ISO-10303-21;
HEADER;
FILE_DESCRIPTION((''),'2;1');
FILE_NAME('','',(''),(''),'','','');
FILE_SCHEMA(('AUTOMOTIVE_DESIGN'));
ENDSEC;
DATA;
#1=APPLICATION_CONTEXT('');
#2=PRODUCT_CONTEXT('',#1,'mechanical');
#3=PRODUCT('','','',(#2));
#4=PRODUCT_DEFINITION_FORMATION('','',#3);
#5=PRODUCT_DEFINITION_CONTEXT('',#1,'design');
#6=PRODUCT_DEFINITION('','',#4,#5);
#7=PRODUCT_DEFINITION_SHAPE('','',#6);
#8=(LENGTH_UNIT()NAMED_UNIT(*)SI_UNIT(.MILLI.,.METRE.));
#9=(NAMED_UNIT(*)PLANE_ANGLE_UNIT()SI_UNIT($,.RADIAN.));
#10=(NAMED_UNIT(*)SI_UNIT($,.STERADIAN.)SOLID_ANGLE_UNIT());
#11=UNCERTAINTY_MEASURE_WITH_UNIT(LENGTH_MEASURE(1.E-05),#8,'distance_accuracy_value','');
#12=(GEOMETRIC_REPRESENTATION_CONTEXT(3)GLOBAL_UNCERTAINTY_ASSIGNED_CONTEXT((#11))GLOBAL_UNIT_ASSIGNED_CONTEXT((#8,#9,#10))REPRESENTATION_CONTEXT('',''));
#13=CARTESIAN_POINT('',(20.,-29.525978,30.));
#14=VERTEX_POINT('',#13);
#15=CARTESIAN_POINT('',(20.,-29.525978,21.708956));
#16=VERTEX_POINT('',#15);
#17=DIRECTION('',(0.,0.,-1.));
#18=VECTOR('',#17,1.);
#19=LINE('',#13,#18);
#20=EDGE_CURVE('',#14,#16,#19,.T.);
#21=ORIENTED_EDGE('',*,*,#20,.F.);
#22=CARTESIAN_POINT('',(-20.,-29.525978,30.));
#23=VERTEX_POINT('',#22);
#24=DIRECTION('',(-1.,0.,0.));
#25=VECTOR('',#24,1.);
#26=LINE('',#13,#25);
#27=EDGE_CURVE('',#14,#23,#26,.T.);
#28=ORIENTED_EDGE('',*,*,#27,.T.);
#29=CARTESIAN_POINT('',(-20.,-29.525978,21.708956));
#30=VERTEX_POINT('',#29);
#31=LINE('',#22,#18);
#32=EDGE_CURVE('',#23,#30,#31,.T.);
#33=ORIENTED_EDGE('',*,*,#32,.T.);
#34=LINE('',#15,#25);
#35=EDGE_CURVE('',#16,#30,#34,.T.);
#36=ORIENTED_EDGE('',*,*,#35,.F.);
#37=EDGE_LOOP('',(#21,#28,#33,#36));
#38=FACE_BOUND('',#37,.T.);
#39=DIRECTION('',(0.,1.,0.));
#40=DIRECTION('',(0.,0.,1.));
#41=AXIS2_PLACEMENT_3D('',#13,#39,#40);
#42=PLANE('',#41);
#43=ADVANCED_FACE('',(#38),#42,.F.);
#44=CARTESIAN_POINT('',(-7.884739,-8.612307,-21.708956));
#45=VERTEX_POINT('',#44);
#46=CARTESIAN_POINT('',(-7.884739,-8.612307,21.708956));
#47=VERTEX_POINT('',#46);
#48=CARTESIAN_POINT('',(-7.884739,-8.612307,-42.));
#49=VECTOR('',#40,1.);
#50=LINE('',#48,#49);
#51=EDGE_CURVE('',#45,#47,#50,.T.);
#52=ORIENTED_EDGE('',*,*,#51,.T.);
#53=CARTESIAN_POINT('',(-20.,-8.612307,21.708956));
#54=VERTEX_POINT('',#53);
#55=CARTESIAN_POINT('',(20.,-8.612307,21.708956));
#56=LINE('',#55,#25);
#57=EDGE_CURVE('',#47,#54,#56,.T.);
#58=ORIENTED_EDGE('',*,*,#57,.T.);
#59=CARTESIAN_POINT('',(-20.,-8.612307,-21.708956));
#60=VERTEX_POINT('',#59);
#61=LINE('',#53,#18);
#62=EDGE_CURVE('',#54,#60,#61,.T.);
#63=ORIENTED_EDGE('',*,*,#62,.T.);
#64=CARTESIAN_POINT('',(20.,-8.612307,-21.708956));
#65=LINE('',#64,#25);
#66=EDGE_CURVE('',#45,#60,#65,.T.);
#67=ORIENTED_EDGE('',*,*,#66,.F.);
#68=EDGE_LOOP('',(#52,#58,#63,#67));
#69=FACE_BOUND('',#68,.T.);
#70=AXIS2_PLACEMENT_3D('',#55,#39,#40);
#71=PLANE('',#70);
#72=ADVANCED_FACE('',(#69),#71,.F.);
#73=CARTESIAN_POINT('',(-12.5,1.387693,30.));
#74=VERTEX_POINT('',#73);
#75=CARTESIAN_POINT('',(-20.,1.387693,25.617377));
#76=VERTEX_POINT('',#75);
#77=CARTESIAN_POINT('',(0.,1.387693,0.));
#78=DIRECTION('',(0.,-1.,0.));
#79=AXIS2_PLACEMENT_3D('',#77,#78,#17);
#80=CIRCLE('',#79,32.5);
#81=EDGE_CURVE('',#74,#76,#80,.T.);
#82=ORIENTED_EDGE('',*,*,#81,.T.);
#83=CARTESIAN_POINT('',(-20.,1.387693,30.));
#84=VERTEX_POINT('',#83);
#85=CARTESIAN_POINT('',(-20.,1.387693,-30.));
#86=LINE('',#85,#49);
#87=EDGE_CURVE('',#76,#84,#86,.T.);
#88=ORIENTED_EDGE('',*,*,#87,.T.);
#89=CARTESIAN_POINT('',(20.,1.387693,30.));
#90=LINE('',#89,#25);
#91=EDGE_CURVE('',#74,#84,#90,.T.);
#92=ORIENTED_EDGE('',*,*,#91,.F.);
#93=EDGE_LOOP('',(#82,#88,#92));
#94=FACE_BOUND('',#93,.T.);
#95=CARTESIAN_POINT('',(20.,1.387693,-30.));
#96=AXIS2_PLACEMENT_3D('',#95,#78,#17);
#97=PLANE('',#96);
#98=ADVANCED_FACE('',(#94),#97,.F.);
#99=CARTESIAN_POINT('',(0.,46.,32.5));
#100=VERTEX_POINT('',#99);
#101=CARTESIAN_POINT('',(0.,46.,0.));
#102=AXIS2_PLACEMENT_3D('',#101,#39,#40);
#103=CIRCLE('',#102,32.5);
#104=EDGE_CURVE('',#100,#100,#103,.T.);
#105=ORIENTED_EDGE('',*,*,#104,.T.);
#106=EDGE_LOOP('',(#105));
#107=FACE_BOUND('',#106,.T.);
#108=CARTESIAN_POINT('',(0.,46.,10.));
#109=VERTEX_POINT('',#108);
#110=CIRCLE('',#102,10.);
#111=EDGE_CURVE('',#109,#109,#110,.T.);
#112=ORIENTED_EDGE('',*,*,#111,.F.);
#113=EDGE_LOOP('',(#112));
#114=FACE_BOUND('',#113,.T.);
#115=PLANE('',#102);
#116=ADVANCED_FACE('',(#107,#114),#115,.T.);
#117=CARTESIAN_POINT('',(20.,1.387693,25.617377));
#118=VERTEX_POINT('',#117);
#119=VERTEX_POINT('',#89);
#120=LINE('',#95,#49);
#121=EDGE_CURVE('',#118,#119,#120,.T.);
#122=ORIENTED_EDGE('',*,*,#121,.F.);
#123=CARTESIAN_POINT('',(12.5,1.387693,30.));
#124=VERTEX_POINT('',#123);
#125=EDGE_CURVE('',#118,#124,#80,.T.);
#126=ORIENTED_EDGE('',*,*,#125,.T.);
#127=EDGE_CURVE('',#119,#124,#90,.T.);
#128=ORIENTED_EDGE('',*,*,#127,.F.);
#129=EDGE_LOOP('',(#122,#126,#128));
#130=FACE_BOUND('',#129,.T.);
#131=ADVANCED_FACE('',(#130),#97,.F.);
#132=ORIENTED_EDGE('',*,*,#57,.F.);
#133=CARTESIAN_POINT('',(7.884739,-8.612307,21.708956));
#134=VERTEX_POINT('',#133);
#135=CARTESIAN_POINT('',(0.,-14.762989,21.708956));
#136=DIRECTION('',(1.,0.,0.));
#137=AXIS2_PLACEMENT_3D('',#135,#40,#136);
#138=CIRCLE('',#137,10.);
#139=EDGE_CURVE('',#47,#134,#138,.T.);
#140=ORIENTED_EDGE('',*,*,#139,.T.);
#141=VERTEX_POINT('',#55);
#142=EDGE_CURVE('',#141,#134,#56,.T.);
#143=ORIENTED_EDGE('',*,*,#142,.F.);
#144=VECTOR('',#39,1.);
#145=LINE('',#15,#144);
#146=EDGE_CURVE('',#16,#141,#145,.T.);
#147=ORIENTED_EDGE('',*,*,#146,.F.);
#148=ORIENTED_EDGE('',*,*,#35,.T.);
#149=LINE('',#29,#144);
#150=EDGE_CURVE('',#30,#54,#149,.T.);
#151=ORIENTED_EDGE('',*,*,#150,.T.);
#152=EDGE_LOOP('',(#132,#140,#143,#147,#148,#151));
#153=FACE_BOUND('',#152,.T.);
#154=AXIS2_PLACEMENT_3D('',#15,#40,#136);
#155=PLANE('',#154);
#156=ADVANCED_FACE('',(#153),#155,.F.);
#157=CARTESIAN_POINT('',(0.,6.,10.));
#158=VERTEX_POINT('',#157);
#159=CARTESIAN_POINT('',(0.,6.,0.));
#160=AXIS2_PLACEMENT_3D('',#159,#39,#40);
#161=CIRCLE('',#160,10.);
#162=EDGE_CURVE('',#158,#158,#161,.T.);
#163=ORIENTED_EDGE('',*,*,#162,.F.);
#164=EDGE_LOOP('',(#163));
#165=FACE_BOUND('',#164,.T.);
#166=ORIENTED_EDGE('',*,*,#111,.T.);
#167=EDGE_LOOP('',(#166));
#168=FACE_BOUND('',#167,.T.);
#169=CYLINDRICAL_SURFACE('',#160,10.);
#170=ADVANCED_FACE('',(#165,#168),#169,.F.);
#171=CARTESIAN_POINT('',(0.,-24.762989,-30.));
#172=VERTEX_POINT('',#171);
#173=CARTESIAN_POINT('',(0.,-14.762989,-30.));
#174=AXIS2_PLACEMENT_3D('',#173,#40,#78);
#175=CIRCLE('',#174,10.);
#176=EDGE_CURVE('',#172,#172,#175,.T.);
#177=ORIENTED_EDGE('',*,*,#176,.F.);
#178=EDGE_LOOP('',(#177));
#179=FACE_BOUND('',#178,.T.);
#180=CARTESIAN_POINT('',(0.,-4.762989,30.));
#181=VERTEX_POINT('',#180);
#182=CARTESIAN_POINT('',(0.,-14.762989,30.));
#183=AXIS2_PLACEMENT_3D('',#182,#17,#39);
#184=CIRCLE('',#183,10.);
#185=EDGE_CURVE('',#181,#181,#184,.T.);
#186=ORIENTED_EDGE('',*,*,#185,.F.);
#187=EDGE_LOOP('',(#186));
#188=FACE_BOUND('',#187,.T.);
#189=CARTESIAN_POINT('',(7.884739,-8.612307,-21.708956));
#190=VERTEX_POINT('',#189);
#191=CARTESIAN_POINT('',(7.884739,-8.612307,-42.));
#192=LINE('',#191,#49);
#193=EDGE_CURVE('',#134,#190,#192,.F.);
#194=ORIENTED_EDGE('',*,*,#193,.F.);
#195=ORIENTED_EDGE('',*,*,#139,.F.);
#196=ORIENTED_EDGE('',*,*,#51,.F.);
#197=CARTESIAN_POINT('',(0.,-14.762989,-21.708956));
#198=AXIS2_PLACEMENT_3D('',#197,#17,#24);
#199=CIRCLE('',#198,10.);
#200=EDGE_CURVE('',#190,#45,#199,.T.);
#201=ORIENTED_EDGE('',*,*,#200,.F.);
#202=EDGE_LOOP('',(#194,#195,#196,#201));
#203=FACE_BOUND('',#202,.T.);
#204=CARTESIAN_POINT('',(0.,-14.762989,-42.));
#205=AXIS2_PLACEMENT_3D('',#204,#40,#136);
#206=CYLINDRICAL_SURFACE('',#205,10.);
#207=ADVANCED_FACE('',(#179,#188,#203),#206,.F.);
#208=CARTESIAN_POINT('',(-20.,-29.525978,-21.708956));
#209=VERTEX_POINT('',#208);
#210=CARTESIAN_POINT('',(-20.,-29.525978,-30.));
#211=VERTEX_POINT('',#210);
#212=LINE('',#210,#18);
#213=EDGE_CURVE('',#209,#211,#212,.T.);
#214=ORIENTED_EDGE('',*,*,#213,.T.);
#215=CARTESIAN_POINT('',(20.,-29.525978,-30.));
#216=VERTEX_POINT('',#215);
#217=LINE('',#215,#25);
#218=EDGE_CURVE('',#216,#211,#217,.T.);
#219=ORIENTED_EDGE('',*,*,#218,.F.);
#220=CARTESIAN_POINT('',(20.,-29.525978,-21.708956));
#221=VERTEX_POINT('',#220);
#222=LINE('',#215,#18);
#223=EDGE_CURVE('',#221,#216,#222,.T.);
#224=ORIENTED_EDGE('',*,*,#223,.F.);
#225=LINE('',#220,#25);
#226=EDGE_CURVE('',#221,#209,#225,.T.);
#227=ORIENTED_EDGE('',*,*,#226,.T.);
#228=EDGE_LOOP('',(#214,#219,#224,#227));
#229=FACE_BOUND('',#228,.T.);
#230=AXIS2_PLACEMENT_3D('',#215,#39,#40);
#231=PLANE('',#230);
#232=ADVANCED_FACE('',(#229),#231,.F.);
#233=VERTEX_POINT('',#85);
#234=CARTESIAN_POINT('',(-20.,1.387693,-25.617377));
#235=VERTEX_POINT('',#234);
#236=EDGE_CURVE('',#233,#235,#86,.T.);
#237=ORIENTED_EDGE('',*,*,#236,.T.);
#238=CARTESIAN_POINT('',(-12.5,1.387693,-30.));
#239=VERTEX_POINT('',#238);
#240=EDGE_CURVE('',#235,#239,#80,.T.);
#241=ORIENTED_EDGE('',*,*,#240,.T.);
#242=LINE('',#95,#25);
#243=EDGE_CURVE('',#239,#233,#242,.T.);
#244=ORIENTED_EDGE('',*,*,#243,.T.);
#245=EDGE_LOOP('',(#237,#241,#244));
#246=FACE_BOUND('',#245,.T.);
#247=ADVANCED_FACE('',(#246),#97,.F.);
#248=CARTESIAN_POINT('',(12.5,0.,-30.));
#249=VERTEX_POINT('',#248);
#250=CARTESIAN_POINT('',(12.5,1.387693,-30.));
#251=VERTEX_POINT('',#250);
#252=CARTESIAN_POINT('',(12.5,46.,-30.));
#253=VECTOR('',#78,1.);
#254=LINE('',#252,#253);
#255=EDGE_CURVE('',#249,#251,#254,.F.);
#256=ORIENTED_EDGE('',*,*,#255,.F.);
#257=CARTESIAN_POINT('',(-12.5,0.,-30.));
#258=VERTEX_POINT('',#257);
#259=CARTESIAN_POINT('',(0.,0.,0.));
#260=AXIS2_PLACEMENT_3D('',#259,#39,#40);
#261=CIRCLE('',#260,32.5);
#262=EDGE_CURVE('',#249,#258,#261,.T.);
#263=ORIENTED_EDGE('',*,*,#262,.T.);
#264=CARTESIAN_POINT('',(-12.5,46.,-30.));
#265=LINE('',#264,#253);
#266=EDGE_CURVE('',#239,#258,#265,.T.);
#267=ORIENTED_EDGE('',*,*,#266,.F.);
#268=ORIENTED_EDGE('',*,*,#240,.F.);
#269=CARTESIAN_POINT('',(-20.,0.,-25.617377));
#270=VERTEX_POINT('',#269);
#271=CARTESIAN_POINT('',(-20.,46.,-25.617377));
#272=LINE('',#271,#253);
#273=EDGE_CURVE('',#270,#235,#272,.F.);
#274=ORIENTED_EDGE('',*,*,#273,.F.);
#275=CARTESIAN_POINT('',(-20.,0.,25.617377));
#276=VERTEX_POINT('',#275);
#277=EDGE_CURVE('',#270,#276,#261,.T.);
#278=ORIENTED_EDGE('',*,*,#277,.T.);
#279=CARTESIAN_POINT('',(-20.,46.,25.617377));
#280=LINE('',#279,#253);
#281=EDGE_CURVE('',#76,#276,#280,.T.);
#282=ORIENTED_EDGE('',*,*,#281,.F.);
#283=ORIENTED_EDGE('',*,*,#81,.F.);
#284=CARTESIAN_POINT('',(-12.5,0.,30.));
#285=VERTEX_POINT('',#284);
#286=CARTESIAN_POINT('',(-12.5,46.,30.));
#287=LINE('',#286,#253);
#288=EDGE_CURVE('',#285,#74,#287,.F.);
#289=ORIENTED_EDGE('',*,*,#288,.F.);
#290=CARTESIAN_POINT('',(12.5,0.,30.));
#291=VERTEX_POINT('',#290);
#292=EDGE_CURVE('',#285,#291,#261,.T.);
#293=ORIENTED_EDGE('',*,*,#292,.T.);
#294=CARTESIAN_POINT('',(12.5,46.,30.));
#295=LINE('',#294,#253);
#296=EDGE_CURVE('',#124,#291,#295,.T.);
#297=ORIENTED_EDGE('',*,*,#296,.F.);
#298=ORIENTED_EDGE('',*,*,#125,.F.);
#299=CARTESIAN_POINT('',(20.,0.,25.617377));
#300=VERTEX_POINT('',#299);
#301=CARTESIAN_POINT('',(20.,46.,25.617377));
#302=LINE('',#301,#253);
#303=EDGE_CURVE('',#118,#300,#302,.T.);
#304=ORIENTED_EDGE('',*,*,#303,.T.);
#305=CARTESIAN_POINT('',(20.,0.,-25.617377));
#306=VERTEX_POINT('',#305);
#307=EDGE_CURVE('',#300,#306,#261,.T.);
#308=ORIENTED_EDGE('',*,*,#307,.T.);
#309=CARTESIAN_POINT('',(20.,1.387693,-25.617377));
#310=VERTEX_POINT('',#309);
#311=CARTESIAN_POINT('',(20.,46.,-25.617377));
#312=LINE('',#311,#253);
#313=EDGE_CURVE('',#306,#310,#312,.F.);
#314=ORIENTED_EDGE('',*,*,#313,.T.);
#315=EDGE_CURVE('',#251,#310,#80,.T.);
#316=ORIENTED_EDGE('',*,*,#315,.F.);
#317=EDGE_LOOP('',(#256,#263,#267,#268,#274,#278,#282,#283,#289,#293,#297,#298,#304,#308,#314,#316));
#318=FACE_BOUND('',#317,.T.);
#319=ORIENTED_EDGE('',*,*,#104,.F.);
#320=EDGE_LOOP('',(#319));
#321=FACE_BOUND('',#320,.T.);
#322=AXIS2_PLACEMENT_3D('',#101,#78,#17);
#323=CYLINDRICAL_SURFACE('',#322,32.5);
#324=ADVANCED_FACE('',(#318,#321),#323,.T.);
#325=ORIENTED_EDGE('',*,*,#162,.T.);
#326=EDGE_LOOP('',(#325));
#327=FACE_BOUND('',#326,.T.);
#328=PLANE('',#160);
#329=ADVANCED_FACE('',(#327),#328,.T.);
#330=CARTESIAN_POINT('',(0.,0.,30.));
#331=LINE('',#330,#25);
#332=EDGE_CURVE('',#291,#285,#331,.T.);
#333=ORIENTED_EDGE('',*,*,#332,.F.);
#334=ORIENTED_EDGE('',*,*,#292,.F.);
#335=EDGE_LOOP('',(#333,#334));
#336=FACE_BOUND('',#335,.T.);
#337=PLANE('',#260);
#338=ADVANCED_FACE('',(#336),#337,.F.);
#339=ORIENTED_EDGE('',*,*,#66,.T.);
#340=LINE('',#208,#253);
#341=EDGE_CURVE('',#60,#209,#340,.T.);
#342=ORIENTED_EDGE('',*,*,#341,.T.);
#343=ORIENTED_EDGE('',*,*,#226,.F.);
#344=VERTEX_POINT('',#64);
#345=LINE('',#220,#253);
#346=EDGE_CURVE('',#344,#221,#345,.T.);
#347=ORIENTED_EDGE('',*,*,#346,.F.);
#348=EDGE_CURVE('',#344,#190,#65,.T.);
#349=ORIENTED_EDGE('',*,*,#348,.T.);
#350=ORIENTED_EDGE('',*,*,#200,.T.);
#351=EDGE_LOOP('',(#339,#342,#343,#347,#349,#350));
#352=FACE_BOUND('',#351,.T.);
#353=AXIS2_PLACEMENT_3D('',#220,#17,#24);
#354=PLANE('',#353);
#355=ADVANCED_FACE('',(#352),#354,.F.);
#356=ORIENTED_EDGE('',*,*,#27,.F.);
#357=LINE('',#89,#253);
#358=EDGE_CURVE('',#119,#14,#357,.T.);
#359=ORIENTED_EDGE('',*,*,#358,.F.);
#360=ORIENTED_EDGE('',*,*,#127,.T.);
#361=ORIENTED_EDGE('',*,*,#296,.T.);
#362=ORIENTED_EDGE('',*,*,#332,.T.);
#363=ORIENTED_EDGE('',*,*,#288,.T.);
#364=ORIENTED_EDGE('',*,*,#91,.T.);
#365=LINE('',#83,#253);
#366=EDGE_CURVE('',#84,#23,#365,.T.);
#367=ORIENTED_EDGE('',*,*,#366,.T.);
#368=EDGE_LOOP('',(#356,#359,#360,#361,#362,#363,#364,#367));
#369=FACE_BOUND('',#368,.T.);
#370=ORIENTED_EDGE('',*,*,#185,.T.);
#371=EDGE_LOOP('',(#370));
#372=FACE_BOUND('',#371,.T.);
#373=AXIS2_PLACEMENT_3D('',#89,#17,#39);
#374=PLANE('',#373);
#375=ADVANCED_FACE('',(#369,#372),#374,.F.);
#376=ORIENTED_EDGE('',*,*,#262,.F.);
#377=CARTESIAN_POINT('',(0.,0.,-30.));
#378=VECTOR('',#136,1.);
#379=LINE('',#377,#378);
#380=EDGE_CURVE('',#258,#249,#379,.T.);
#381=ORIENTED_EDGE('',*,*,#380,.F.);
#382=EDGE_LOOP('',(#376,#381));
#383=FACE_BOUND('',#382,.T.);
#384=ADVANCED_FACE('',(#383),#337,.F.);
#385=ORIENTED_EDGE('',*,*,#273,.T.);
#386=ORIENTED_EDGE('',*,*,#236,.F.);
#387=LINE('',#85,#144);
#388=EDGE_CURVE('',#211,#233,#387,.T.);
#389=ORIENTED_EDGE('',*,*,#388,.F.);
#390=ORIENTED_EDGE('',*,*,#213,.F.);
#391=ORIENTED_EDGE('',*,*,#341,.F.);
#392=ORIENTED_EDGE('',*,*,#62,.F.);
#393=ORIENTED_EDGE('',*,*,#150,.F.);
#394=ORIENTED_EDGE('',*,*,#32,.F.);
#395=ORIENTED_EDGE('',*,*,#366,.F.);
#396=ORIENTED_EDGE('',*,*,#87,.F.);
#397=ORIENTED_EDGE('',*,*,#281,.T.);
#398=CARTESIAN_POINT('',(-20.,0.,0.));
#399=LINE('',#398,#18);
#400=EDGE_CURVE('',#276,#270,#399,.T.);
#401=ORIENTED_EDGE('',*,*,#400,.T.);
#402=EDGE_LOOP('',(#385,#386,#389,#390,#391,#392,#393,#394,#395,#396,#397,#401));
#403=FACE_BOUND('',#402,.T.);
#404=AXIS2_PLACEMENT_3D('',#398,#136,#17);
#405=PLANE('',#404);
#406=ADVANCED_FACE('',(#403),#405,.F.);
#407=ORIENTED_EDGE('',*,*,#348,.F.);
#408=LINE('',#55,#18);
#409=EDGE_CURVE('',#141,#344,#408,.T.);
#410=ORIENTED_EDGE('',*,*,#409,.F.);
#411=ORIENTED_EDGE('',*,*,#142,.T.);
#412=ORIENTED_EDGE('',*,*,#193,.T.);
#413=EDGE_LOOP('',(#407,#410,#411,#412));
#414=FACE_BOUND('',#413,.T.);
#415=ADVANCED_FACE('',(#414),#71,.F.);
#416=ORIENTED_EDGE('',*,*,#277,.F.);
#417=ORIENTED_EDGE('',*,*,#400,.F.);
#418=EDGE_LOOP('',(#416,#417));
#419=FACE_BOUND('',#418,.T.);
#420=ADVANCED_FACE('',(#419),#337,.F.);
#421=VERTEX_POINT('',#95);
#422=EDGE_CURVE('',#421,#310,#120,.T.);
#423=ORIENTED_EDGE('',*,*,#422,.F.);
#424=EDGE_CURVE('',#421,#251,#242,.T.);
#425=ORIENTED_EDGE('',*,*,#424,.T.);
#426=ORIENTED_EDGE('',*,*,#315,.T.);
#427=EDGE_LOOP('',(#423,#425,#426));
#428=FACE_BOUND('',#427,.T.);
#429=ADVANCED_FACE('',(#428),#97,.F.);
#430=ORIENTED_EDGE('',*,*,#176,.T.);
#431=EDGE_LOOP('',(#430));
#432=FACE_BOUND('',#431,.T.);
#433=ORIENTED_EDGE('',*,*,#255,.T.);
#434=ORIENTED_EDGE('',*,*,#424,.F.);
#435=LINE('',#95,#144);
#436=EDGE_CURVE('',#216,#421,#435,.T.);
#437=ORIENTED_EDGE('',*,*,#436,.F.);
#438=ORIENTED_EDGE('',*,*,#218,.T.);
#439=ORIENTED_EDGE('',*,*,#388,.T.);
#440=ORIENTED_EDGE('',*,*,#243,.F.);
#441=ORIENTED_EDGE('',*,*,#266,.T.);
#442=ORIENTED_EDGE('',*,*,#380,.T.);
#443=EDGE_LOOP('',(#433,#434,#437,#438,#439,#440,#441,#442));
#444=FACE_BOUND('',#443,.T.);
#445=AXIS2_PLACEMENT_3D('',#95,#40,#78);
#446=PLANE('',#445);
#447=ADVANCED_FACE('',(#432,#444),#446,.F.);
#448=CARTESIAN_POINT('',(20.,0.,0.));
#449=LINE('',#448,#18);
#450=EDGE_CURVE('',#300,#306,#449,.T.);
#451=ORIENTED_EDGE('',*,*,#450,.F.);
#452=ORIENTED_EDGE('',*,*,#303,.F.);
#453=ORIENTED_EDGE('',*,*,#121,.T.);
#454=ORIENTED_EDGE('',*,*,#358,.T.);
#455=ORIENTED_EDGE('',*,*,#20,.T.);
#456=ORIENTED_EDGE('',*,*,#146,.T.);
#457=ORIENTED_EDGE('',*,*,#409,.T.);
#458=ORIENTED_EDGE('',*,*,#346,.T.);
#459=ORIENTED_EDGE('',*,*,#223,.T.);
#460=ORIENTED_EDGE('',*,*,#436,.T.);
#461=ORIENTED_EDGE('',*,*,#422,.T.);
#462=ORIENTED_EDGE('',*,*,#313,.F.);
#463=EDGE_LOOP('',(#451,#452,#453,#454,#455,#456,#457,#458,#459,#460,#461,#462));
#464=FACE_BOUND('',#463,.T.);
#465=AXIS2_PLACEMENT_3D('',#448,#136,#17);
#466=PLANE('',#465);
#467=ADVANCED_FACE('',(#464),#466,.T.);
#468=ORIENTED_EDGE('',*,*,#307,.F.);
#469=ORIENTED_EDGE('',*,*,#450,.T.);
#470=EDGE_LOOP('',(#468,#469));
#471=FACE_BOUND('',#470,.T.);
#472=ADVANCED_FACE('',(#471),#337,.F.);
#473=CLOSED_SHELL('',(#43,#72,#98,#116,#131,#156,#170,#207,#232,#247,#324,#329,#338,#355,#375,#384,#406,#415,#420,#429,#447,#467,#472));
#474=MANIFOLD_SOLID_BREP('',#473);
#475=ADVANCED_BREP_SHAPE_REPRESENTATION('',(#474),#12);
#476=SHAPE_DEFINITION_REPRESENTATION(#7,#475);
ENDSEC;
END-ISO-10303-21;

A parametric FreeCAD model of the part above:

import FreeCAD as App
import Part
import Sketcher
Q = App.Units.Quantity


def add_polygon(sketch, points):
    """Adds a closed chain of lines whose ends are joined by coincident constraints."""
    first, n = sketch.GeometryCount, len(points)
    for a, b in zip(points, points[1:] + points[:1]):
        sketch.addGeometry(Part.LineSegment(App.Vector(*a, 0), App.Vector(*b, 0)), False)
    for i in range(n):
        sketch.addConstraint(Sketcher.Constraint("Coincident", first + i, 2, first + (i + 1) % n, 1))

doc = App.newDocument("Part")
params = doc.addObject("Spreadsheet::Sheet", "Params")
for row, (alias, value) in enumerate([
    ("sketch1_diameter", "65 mm"),
    ("pad1_length", "46 mm"),
    ("sketch2_diameter", "20 mm"),
    ("pocket1_length", "40 mm"),
    ("sketch3_height", "60 mm"),
    ("pad2_length", "40 mm"),
    ("sketch4_diameter", "20 mm"),
    ("pocket2_length", "84 mm"),
], start=1):
    params.set(f"A{row}", alias)
    params.set(f"B{row}", "=" + value)
    params.setAlias(f"B{row}", alias)

body = doc.addObject("PartDesign::Body", "Body")

sketch1 = doc.addObject("Sketcher::SketchObject", "Sketch")
body.addObject(sketch1)
sketch1.AttachmentSupport = (doc.XZ_Plane, [""])
sketch1.MapMode = "FlatFace"
sketch1.addGeometry(Part.Circle(App.Vector(0, 0, 0), App.Vector(0, 0, 1), 32.5), False)
sketch1.addConstraint(Sketcher.Constraint("Coincident", 0, 3, -1, 1))
sketch1.addConstraint(Sketcher.Constraint("Diameter", 0, Q("65 mm")))
sketch1.setExpression("Constraints[1]", "Params.sketch1_diameter")
pad1 = doc.addObject("PartDesign::Pad", "Pad")
body.addObject(pad1)
pad1.Profile = sketch1
pad1.setExpression("Length", "Params.pad1_length")
pad1.Reversed = True

sketch2 = doc.addObject("Sketcher::SketchObject", "Sketch001")
body.addObject(sketch2)
sketch2.AttachmentSupport = (doc.XZ_Plane, [""])
sketch2.MapMode = "FlatFace"
sketch2.AttachmentOffset = App.Placement(App.Vector(0, 0, -46), App.Rotation())
sketch2.addGeometry(Part.Circle(App.Vector(0, 0, 0), App.Vector(0, 0, 1), 10), False)
sketch2.addConstraint(Sketcher.Constraint("Coincident", 0, 3, -1, 1))
sketch2.addConstraint(Sketcher.Constraint("Diameter", 0, Q("20 mm")))
sketch2.setExpression("Constraints[1]", "Params.sketch2_diameter")
pocket1 = doc.addObject("PartDesign::Pocket", "Pocket")
body.addObject(pocket1)
pocket1.Profile = sketch2
pocket1.setExpression("Length", "Params.pocket1_length")
pocket1.Reversed = True

sketch3 = doc.addObject("Sketcher::SketchObject", "Sketch002")
body.addObject(sketch3)
sketch3.AttachmentSupport = (doc.YZ_Plane, [""])
sketch3.MapMode = "FlatFace"
add_polygon(sketch3, [(1.387693, -30), (1.387693, 30), (-29.525978, 30), (-29.525978, 21.708956), (-8.612307, 21.708956), (-8.612307, -21.708956), (-29.525978, -21.708956), (-29.525978, -30)])
sketch3.addConstraint(Sketcher.Constraint("Vertical", 0))
sketch3.addConstraint(Sketcher.Constraint("Horizontal", 1))
sketch3.addConstraint(Sketcher.Constraint("Vertical", 2))
sketch3.addConstraint(Sketcher.Constraint("Horizontal", 3))
sketch3.addConstraint(Sketcher.Constraint("Vertical", 4))
sketch3.addConstraint(Sketcher.Constraint("Horizontal", 5))
sketch3.addConstraint(Sketcher.Constraint("Vertical", 6))
sketch3.addConstraint(Sketcher.Constraint("Horizontal", 7))
sketch3.addConstraint(Sketcher.Constraint("Symmetric", 2, 2, 5, 2, -1))
sketch3.addConstraint(Sketcher.Constraint("Equal", 2, 6))
sketch3.addConstraint(Sketcher.Constraint("DistanceY", 0, 1, 0, 2, Q("60 mm")))
sketch3.addConstraint(Sketcher.Constraint("DistanceX", 3, 2, 0, 2, Q("10 mm")))
sketch3.addConstraint(Sketcher.Constraint("DistanceX", 1, 2, 1, 1, Q("30.91367 mm")))
sketch3.addConstraint(Sketcher.Constraint("DistanceY", 4, 2, 4, 1, Q("43.417912 mm")))
sketch3.addConstraint(Sketcher.Constraint("DistanceX", -1, 1, 0, 2, Q("1.387693 mm")))
sketch3.setExpression("Constraints[18]", "Params.sketch3_height")
pad2 = doc.addObject("PartDesign::Pad", "Pad001")
body.addObject(pad2)
pad2.Profile = sketch3
pad2.setExpression("Length", "Params.pad2_length")
pad2.Midplane = True

sketch4 = doc.addObject("Sketcher::SketchObject", "Sketch003")
body.addObject(sketch4)
sketch4.AttachmentSupport = (doc.XY_Plane, [""])
sketch4.MapMode = "FlatFace"
sketch4.addGeometry(Part.Circle(App.Vector(0, -14.762989, 0), App.Vector(0, 0, 1), 10), False)
sketch4.addConstraint(Sketcher.Constraint("PointOnObject", 0, 3, -2))
sketch4.addConstraint(Sketcher.Constraint("Diameter", 0, Q("20 mm")))
sketch4.addConstraint(Sketcher.Constraint("DistanceY", 0, 3, -1, 1, Q("14.762989 mm")))
sketch4.setExpression("Constraints[1]", "Params.sketch4_diameter")
pocket2 = doc.addObject("PartDesign::Pocket", "Pocket001")
body.addObject(pocket2)
pocket2.Profile = sketch4
pocket2.setExpression("Length", "Params.pocket2_length")
pocket2.Midplane = True

doc.recompute()
